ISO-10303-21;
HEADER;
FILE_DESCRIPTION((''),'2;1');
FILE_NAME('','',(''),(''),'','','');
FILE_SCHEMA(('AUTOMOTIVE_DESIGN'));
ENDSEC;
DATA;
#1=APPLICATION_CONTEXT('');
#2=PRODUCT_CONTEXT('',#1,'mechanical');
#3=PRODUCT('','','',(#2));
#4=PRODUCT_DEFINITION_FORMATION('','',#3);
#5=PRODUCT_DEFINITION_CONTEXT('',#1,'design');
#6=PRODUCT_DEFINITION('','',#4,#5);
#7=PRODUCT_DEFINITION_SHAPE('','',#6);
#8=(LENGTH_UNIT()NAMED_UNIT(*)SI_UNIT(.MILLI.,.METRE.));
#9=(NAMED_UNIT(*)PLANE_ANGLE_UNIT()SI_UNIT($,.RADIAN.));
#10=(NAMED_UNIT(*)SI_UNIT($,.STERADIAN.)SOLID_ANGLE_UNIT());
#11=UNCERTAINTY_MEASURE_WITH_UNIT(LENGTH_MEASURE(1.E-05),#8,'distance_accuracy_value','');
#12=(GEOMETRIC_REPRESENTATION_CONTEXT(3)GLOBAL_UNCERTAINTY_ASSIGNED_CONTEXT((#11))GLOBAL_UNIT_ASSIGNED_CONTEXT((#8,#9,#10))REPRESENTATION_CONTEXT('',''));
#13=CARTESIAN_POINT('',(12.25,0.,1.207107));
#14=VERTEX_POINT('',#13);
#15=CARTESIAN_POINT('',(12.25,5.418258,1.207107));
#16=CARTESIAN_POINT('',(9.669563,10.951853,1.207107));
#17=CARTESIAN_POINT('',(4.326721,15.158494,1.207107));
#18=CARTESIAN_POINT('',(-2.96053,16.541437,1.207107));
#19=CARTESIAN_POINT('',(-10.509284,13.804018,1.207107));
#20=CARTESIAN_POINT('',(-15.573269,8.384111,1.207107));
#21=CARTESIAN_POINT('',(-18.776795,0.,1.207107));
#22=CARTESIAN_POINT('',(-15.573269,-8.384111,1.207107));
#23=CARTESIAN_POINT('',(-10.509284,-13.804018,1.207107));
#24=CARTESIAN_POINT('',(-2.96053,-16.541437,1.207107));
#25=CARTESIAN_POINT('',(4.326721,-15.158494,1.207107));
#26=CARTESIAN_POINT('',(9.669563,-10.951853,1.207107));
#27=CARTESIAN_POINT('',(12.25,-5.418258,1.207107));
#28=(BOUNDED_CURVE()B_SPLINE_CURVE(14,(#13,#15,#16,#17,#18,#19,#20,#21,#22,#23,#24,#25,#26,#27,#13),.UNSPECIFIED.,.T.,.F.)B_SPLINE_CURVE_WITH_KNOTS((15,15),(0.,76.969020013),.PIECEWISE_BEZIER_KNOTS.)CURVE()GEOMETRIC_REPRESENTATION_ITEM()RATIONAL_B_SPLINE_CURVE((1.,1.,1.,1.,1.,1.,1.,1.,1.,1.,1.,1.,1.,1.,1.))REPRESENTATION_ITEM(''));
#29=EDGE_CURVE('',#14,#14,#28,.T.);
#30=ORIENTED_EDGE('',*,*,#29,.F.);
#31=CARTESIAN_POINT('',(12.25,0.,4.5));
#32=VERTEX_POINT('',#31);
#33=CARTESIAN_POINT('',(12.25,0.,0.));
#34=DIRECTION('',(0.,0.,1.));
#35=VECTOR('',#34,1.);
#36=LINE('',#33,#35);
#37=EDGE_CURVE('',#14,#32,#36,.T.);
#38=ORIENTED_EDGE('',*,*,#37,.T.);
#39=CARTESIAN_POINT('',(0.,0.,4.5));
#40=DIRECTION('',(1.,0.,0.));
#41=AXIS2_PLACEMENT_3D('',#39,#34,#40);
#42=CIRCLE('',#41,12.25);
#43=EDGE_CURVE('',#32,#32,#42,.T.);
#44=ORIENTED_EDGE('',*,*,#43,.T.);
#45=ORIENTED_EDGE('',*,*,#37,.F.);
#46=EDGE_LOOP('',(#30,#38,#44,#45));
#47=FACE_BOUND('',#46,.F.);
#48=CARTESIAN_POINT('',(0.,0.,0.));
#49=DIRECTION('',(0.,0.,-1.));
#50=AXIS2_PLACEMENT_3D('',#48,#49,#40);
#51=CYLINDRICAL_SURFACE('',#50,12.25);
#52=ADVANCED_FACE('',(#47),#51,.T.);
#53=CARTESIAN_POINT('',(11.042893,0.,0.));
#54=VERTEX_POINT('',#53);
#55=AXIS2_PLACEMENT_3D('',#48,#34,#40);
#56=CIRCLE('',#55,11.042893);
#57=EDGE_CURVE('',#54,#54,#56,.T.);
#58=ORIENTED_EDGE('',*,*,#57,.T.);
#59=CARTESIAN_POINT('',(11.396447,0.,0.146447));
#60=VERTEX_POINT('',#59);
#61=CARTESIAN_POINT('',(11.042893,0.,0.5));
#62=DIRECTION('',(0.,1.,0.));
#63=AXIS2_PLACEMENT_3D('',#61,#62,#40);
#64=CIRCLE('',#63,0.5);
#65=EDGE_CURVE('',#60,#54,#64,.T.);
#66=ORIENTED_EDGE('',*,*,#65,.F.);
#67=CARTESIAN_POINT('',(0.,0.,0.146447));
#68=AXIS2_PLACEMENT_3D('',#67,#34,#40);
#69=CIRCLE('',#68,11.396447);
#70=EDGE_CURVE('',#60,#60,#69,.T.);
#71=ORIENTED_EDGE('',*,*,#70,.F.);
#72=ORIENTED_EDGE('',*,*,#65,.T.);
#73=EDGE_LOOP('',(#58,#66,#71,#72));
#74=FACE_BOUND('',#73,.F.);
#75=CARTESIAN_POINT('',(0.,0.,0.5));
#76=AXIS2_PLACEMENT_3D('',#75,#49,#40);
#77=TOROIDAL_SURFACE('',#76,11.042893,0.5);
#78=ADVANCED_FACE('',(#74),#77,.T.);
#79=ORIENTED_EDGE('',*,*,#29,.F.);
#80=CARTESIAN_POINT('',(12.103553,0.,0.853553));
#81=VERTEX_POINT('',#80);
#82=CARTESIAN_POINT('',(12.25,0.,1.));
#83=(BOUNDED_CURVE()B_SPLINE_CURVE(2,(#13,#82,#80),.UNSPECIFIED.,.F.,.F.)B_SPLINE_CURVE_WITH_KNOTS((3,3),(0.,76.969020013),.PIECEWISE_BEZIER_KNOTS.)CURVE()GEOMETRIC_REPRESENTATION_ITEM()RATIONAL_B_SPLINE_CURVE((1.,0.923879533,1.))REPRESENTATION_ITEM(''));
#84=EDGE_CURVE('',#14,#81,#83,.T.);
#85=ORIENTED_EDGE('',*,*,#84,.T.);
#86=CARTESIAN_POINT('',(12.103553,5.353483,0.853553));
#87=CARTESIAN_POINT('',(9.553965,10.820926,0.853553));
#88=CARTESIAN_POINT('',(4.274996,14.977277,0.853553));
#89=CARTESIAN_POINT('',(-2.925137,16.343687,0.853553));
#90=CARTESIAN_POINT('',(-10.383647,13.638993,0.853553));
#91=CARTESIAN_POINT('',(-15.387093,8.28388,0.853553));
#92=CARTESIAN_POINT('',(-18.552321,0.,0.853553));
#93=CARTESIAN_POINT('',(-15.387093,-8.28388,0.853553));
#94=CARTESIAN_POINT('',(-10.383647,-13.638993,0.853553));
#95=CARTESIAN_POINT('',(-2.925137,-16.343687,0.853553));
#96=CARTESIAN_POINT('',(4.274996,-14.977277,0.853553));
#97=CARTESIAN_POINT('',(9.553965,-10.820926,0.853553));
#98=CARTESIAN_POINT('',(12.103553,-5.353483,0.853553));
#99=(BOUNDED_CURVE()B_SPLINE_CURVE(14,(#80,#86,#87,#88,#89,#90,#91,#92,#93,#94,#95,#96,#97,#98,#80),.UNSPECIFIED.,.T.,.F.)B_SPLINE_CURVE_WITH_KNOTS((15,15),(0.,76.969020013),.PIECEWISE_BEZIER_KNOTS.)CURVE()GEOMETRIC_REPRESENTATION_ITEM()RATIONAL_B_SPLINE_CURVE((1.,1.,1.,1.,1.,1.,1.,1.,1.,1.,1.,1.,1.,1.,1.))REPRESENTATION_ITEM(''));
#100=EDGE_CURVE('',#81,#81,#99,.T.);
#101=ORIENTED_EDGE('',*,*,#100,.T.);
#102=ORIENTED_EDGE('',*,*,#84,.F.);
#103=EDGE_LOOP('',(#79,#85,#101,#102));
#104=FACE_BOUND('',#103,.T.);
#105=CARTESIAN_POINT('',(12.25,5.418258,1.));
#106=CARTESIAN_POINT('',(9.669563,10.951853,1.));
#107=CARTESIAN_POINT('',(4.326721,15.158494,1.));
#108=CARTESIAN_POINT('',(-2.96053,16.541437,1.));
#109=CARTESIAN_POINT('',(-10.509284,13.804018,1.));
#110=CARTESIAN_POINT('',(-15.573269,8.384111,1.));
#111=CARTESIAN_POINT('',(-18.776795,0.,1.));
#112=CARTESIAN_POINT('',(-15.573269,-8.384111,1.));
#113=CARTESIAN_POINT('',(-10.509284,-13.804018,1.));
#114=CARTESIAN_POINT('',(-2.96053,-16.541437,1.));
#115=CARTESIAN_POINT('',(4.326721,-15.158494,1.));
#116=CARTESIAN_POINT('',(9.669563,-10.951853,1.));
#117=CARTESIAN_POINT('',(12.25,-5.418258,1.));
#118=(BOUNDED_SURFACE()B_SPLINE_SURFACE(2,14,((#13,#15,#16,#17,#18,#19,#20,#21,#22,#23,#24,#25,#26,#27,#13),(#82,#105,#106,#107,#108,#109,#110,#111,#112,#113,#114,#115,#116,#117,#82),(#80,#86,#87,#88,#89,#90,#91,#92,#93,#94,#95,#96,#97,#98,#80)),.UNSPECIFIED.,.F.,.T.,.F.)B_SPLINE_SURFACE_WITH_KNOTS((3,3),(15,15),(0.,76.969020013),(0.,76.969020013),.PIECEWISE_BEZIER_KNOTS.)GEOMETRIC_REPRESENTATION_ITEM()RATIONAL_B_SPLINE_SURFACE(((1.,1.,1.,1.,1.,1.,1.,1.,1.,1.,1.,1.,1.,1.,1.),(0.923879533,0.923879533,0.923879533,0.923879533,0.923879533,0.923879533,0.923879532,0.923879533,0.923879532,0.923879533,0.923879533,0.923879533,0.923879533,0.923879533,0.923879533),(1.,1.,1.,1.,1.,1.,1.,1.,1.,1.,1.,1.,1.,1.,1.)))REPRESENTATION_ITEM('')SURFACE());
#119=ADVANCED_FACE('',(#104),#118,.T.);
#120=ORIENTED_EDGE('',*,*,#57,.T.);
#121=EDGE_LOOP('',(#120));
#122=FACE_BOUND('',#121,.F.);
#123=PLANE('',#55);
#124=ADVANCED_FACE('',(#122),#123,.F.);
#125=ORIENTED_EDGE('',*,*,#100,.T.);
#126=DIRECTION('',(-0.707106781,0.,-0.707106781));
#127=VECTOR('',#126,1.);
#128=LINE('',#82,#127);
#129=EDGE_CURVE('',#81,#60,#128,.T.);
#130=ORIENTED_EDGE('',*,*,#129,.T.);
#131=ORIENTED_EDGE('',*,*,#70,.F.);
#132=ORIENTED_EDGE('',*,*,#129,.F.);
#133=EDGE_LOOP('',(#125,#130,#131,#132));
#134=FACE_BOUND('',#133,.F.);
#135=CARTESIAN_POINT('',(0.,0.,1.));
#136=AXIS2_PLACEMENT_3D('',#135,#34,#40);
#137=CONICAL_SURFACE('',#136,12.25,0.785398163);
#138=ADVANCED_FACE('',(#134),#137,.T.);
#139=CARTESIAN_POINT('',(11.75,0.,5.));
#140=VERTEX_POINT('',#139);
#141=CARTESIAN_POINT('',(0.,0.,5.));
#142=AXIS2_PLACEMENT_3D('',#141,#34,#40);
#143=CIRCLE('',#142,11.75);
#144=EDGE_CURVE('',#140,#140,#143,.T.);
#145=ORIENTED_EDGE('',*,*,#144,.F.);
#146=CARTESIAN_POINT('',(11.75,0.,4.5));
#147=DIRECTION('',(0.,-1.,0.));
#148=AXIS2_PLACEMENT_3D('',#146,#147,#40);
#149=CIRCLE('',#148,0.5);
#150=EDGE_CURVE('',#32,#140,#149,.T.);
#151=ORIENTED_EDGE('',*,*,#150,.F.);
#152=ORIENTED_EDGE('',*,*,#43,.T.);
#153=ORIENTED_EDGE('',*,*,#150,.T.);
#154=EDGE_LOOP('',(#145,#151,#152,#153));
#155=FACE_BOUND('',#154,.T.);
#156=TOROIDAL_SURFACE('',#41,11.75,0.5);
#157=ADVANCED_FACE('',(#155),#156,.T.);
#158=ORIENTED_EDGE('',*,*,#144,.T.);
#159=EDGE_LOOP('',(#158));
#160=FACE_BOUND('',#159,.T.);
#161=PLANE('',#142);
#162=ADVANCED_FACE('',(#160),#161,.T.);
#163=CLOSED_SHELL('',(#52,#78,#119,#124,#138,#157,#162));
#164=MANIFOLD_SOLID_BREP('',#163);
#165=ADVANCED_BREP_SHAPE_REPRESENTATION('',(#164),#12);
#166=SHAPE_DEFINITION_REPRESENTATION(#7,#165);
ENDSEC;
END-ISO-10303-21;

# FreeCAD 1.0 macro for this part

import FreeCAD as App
import Part
import Sketcher

V = App.Vector


def edges_at(feature, points):
    """Names of the edges that pass closest to the given points."""
    edges = feature.Shape.Edges
    near = lambda p: min(range(len(edges)), key=lambda i: edges[i].distToShape(Part.Vertex(*p))[0])
    return sorted({f"Edge{near(p) + 1}" for p in points})

doc = App.newDocument("Part")
body = doc.addObject("PartDesign::Body", "Body")

# Sketch on XY plane
sketch1 = body.newObject("Sketcher::SketchObject", "Sketch")
sketch1.AttachmentSupport = (doc.getObject("XY_Plane"), [""])
sketch1.MapMode = "FlatFace"
sketch1.addGeometry(Part.Circle(V(0, 0, 0), V(0, 0, 1), 12.25), False)
sketch1.addConstraint(Sketcher.Constraint("Coincident", 0, 3, -1, 1))
sketch1.addConstraint(Sketcher.Constraint("Diameter", 0, 24.5))
pad1 = body.newObject("PartDesign::Pad", "Pad")
pad1.Profile = sketch1
pad1.Length = 5
doc.recompute()

chamfer = body.newObject("PartDesign::Chamfer", "Chamfer")
chamfer.Base = (pad1, edges_at(pad1, [(-12.25, 0, 0)]))
chamfer.Size = 1
doc.recompute()

fillet = body.newObject("PartDesign::Fillet", "Fillet")
fillet.Base = (chamfer, edges_at(chamfer, [(-12.25, 0, 5), (-12.25, 0, 1), (-11.25, 0, 0)]))
fillet.Radius = 0.5

doc.recompute()
